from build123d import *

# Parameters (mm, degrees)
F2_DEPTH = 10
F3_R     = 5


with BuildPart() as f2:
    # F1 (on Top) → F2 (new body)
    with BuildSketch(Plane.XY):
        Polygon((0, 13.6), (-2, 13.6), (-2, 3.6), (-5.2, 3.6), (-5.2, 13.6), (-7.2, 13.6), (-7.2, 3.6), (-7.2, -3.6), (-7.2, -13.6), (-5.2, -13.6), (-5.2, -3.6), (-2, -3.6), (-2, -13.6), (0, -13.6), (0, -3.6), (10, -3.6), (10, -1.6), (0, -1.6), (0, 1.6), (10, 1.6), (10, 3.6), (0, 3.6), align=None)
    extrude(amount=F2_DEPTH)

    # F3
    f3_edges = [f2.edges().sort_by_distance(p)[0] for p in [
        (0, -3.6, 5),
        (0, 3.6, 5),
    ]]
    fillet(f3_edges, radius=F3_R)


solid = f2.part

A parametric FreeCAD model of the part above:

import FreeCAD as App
import Part
import Sketcher

V = App.Vector
Q = App.Units.Quantity


def edges_at(feature, points):
    """Names of the edges that pass closest to the given points."""
    edges = feature.Shape.Edges
    near = lambda p: min(range(len(edges)), key=lambda i: edges[i].distToShape(Part.Vertex(*p))[0])
    return sorted({f"Edge{near(p) + 1}" for p in points})

doc = App.newDocument("Part")
body = doc.addObject("PartDesign::Body", "Body")

sketch1 = body.newObject("Sketcher::SketchObject", "Sketch")
sketch1.AttachmentSupport = (doc.getObject("XY_Plane"), [""])
sketch1.MapMode = "FlatFace"
sketch1.addGeometry(Part.LineSegment(V(0, 13.6, 0), V(-2, 13.6, 0)), False)
sketch1.addGeometry(Part.LineSegment(V(-2, 13.6, 0), V(-2, 3.6, 0)), False)
sketch1.addGeometry(Part.LineSegment(V(-2, 3.6, 0), V(-5.2, 3.6, 0)), False)
sketch1.addGeometry(Part.LineSegment(V(-5.2, 3.6, 0), V(-5.2, 13.6, 0)), False)
sketch1.addGeometry(Part.LineSegment(V(-5.2, 13.6, 0), V(-7.2, 13.6, 0)), False)
sketch1.addGeometry(Part.LineSegment(V(-7.2, 13.6, 0), V(-7.2, -13.6, 0)), False)
sketch1.addGeometry(Part.LineSegment(V(-7.2, -13.6, 0), V(-5.2, -13.6, 0)), False)
sketch1.addGeometry(Part.LineSegment(V(-5.2, -13.6, 0), V(-5.2, -3.6, 0)), False)
sketch1.addGeometry(Part.LineSegment(V(-5.2, -3.6, 0), V(-2, -3.6, 0)), False)
sketch1.addGeometry(Part.LineSegment(V(-2, -3.6, 0), V(-2, -13.6, 0)), False)
sketch1.addGeometry(Part.LineSegment(V(-2, -13.6, 0), V(0, -13.6, 0)), False)
sketch1.addGeometry(Part.LineSegment(V(0, -13.6, 0), V(0, -3.6, 0)), False)
sketch1.addGeometry(Part.LineSegment(V(0, -3.6, 0), V(10, -3.6, 0)), False)
sketch1.addGeometry(Part.LineSegment(V(10, -3.6, 0), V(10, -1.6, 0)), False)
sketch1.addGeometry(Part.LineSegment(V(10, -1.6, 0), V(0, -1.6, 0)), False)
sketch1.addGeometry(Part.LineSegment(V(0, -1.6, 0), V(0, 1.6, 0)), False)
sketch1.addGeometry(Part.LineSegment(V(0, 1.6, 0), V(10, 1.6, 0)), False)
sketch1.addGeometry(Part.LineSegment(V(10, 1.6, 0), V(10, 3.6, 0)), False)
sketch1.addGeometry(Part.LineSegment(V(10, 3.6, 0), V(0, 3.6, 0)), False)
sketch1.addGeometry(Part.LineSegment(V(0, 3.6, 0), V(0, 13.6, 0)), False)
sketch1.addConstraint(Sketcher.Constraint("Coincident", 0, 2, 1, 1))
sketch1.addConstraint(Sketcher.Constraint("Coincident", 1, 2, 2, 1))
sketch1.addConstraint(Sketcher.Constraint("Coincident", 2, 2, 3, 1))
sketch1.addConstraint(Sketcher.Constraint("Coincident", 3, 2, 4, 1))
sketch1.addConstraint(Sketcher.Constraint("Coincident", 4, 2, 5, 1))
sketch1.addConstraint(Sketcher.Constraint("Coincident", 5, 2, 6, 1))
sketch1.addConstraint(Sketcher.Constraint("Coincident", 6, 2, 7, 1))
sketch1.addConstraint(Sketcher.Constraint("Coincident", 7, 2, 8, 1))
sketch1.addConstraint(Sketcher.Constraint("Coincident", 8, 2, 9, 1))
sketch1.addConstraint(Sketcher.Constraint("Coincident", 9, 2, 10, 1))
sketch1.addConstraint(Sketcher.Constraint("Coincident", 10, 2, 11, 1))
sketch1.addConstraint(Sketcher.Constraint("Coincident", 11, 2, 12, 1))
sketch1.addConstraint(Sketcher.Constraint("Coincident", 12, 2, 13, 1))
sketch1.addConstraint(Sketcher.Constraint("Coincident", 13, 2, 14, 1))
sketch1.addConstraint(Sketcher.Constraint("Coincident", 14, 2, 15, 1))
sketch1.addConstraint(Sketcher.Constraint("Coincident", 15, 2, 16, 1))
sketch1.addConstraint(Sketcher.Constraint("Coincident", 16, 2, 17, 1))
sketch1.addConstraint(Sketcher.Constraint("Coincident", 17, 2, 18, 1))
sketch1.addConstraint(Sketcher.Constraint("Coincident", 18, 2, 19, 1))
sketch1.addConstraint(Sketcher.Constraint("Coincident", 19, 2, 0, 1))
sketch1.addConstraint(Sketcher.Constraint("Horizontal", 0))
sketch1.addConstraint(Sketcher.Constraint("Vertical", 1))
sketch1.addConstraint(Sketcher.Constraint("Horizontal", 2))
sketch1.addConstraint(Sketcher.Constraint("Vertical", 3))
sketch1.addConstraint(Sketcher.Constraint("Horizontal", 4))
sketch1.addConstraint(Sketcher.Constraint("Vertical", 5))
sketch1.addConstraint(Sketcher.Constraint("Horizontal", 6))
sketch1.addConstraint(Sketcher.Constraint("Vertical", 7))
sketch1.addConstraint(Sketcher.Constraint("Horizontal", 8))
sketch1.addConstraint(Sketcher.Constraint("Vertical", 9))
sketch1.addConstraint(Sketcher.Constraint("Horizontal", 10))
sketch1.addConstraint(Sketcher.Constraint("Vertical", 11))
sketch1.addConstraint(Sketcher.Constraint("Horizontal", 12))
sketch1.addConstraint(Sketcher.Constraint("Vertical", 13))
sketch1.addConstraint(Sketcher.Constraint("Horizontal", 14))
sketch1.addConstraint(Sketcher.Constraint("Vertical", 15))
sketch1.addConstraint(Sketcher.Constraint("Horizontal", 16))
sketch1.addConstraint(Sketcher.Constraint("Vertical", 17))
sketch1.addConstraint(Sketcher.Constraint("Horizontal", 18))
sketch1.addConstraint(Sketcher.Constraint("Vertical", 19))
sketch1.addConstraint(Sketcher.Constraint("Symmetric", 14, 2, 15, 2, -1, 1))
sketch1.addConstraint(Sketcher.Constraint("Symmetric", 11, 2, 18, 2, -1, 1))
sketch1.addConstraint(Sketcher.Constraint("Symmetric", 3, 2, 6, 2, -1))
sketch1.addConstraint(Sketcher.Constraint("Symmetric", 1, 2, 8, 2, -1))
sketch1.addConstraint(Sketcher.Constraint("Symmetric", 10, 2, 19, 2, -1))
sketch1.addConstraint(Sketcher.Constraint("Horizontal", 0, 2, 3, 2))
sketch1.addConstraint(Sketcher.Constraint("Horizontal", 8, 2, 11, 2))
sketch1.addConstraint(Sketcher.Constraint("Vertical", 13, 2, 16, 2))
sketch1.addConstraint(Sketcher.Constraint("Equal", 0, 4))
sketch1.addConstraint(Sketcher.Constraint("Equal", 18, 1))
sketch1.addConstraint(Sketcher.Constraint("Equal", 10, 13))
sketch1.addConstraint(Sketcher.Constraint("Equal", 8, 15))
sketch1.addConstraint(Sketcher.Constraint("DistanceX", 0, 2, 0, 1, Q("2 mm")))
sketch1.addConstraint(Sketcher.Constraint("DistanceX", 12, 1, 12, 2, Q("10 mm")))
sketch1.addConstraint(Sketcher.Constraint("DistanceX", 2, 2, 2, 1, Q("3.2 mm")))
pad1 = body.newObject("PartDesign::Pad", "Pad")
pad1.Profile = sketch1
pad1.Length = 10
doc.recompute()

fillet = body.newObject("PartDesign::Fillet", "Fillet")
fillet.Base = (pad1, edges_at(pad1, [(0, -3.6, 5), (0, 3.6, 5)]))
fillet.Radius = 5

doc.recompute()
